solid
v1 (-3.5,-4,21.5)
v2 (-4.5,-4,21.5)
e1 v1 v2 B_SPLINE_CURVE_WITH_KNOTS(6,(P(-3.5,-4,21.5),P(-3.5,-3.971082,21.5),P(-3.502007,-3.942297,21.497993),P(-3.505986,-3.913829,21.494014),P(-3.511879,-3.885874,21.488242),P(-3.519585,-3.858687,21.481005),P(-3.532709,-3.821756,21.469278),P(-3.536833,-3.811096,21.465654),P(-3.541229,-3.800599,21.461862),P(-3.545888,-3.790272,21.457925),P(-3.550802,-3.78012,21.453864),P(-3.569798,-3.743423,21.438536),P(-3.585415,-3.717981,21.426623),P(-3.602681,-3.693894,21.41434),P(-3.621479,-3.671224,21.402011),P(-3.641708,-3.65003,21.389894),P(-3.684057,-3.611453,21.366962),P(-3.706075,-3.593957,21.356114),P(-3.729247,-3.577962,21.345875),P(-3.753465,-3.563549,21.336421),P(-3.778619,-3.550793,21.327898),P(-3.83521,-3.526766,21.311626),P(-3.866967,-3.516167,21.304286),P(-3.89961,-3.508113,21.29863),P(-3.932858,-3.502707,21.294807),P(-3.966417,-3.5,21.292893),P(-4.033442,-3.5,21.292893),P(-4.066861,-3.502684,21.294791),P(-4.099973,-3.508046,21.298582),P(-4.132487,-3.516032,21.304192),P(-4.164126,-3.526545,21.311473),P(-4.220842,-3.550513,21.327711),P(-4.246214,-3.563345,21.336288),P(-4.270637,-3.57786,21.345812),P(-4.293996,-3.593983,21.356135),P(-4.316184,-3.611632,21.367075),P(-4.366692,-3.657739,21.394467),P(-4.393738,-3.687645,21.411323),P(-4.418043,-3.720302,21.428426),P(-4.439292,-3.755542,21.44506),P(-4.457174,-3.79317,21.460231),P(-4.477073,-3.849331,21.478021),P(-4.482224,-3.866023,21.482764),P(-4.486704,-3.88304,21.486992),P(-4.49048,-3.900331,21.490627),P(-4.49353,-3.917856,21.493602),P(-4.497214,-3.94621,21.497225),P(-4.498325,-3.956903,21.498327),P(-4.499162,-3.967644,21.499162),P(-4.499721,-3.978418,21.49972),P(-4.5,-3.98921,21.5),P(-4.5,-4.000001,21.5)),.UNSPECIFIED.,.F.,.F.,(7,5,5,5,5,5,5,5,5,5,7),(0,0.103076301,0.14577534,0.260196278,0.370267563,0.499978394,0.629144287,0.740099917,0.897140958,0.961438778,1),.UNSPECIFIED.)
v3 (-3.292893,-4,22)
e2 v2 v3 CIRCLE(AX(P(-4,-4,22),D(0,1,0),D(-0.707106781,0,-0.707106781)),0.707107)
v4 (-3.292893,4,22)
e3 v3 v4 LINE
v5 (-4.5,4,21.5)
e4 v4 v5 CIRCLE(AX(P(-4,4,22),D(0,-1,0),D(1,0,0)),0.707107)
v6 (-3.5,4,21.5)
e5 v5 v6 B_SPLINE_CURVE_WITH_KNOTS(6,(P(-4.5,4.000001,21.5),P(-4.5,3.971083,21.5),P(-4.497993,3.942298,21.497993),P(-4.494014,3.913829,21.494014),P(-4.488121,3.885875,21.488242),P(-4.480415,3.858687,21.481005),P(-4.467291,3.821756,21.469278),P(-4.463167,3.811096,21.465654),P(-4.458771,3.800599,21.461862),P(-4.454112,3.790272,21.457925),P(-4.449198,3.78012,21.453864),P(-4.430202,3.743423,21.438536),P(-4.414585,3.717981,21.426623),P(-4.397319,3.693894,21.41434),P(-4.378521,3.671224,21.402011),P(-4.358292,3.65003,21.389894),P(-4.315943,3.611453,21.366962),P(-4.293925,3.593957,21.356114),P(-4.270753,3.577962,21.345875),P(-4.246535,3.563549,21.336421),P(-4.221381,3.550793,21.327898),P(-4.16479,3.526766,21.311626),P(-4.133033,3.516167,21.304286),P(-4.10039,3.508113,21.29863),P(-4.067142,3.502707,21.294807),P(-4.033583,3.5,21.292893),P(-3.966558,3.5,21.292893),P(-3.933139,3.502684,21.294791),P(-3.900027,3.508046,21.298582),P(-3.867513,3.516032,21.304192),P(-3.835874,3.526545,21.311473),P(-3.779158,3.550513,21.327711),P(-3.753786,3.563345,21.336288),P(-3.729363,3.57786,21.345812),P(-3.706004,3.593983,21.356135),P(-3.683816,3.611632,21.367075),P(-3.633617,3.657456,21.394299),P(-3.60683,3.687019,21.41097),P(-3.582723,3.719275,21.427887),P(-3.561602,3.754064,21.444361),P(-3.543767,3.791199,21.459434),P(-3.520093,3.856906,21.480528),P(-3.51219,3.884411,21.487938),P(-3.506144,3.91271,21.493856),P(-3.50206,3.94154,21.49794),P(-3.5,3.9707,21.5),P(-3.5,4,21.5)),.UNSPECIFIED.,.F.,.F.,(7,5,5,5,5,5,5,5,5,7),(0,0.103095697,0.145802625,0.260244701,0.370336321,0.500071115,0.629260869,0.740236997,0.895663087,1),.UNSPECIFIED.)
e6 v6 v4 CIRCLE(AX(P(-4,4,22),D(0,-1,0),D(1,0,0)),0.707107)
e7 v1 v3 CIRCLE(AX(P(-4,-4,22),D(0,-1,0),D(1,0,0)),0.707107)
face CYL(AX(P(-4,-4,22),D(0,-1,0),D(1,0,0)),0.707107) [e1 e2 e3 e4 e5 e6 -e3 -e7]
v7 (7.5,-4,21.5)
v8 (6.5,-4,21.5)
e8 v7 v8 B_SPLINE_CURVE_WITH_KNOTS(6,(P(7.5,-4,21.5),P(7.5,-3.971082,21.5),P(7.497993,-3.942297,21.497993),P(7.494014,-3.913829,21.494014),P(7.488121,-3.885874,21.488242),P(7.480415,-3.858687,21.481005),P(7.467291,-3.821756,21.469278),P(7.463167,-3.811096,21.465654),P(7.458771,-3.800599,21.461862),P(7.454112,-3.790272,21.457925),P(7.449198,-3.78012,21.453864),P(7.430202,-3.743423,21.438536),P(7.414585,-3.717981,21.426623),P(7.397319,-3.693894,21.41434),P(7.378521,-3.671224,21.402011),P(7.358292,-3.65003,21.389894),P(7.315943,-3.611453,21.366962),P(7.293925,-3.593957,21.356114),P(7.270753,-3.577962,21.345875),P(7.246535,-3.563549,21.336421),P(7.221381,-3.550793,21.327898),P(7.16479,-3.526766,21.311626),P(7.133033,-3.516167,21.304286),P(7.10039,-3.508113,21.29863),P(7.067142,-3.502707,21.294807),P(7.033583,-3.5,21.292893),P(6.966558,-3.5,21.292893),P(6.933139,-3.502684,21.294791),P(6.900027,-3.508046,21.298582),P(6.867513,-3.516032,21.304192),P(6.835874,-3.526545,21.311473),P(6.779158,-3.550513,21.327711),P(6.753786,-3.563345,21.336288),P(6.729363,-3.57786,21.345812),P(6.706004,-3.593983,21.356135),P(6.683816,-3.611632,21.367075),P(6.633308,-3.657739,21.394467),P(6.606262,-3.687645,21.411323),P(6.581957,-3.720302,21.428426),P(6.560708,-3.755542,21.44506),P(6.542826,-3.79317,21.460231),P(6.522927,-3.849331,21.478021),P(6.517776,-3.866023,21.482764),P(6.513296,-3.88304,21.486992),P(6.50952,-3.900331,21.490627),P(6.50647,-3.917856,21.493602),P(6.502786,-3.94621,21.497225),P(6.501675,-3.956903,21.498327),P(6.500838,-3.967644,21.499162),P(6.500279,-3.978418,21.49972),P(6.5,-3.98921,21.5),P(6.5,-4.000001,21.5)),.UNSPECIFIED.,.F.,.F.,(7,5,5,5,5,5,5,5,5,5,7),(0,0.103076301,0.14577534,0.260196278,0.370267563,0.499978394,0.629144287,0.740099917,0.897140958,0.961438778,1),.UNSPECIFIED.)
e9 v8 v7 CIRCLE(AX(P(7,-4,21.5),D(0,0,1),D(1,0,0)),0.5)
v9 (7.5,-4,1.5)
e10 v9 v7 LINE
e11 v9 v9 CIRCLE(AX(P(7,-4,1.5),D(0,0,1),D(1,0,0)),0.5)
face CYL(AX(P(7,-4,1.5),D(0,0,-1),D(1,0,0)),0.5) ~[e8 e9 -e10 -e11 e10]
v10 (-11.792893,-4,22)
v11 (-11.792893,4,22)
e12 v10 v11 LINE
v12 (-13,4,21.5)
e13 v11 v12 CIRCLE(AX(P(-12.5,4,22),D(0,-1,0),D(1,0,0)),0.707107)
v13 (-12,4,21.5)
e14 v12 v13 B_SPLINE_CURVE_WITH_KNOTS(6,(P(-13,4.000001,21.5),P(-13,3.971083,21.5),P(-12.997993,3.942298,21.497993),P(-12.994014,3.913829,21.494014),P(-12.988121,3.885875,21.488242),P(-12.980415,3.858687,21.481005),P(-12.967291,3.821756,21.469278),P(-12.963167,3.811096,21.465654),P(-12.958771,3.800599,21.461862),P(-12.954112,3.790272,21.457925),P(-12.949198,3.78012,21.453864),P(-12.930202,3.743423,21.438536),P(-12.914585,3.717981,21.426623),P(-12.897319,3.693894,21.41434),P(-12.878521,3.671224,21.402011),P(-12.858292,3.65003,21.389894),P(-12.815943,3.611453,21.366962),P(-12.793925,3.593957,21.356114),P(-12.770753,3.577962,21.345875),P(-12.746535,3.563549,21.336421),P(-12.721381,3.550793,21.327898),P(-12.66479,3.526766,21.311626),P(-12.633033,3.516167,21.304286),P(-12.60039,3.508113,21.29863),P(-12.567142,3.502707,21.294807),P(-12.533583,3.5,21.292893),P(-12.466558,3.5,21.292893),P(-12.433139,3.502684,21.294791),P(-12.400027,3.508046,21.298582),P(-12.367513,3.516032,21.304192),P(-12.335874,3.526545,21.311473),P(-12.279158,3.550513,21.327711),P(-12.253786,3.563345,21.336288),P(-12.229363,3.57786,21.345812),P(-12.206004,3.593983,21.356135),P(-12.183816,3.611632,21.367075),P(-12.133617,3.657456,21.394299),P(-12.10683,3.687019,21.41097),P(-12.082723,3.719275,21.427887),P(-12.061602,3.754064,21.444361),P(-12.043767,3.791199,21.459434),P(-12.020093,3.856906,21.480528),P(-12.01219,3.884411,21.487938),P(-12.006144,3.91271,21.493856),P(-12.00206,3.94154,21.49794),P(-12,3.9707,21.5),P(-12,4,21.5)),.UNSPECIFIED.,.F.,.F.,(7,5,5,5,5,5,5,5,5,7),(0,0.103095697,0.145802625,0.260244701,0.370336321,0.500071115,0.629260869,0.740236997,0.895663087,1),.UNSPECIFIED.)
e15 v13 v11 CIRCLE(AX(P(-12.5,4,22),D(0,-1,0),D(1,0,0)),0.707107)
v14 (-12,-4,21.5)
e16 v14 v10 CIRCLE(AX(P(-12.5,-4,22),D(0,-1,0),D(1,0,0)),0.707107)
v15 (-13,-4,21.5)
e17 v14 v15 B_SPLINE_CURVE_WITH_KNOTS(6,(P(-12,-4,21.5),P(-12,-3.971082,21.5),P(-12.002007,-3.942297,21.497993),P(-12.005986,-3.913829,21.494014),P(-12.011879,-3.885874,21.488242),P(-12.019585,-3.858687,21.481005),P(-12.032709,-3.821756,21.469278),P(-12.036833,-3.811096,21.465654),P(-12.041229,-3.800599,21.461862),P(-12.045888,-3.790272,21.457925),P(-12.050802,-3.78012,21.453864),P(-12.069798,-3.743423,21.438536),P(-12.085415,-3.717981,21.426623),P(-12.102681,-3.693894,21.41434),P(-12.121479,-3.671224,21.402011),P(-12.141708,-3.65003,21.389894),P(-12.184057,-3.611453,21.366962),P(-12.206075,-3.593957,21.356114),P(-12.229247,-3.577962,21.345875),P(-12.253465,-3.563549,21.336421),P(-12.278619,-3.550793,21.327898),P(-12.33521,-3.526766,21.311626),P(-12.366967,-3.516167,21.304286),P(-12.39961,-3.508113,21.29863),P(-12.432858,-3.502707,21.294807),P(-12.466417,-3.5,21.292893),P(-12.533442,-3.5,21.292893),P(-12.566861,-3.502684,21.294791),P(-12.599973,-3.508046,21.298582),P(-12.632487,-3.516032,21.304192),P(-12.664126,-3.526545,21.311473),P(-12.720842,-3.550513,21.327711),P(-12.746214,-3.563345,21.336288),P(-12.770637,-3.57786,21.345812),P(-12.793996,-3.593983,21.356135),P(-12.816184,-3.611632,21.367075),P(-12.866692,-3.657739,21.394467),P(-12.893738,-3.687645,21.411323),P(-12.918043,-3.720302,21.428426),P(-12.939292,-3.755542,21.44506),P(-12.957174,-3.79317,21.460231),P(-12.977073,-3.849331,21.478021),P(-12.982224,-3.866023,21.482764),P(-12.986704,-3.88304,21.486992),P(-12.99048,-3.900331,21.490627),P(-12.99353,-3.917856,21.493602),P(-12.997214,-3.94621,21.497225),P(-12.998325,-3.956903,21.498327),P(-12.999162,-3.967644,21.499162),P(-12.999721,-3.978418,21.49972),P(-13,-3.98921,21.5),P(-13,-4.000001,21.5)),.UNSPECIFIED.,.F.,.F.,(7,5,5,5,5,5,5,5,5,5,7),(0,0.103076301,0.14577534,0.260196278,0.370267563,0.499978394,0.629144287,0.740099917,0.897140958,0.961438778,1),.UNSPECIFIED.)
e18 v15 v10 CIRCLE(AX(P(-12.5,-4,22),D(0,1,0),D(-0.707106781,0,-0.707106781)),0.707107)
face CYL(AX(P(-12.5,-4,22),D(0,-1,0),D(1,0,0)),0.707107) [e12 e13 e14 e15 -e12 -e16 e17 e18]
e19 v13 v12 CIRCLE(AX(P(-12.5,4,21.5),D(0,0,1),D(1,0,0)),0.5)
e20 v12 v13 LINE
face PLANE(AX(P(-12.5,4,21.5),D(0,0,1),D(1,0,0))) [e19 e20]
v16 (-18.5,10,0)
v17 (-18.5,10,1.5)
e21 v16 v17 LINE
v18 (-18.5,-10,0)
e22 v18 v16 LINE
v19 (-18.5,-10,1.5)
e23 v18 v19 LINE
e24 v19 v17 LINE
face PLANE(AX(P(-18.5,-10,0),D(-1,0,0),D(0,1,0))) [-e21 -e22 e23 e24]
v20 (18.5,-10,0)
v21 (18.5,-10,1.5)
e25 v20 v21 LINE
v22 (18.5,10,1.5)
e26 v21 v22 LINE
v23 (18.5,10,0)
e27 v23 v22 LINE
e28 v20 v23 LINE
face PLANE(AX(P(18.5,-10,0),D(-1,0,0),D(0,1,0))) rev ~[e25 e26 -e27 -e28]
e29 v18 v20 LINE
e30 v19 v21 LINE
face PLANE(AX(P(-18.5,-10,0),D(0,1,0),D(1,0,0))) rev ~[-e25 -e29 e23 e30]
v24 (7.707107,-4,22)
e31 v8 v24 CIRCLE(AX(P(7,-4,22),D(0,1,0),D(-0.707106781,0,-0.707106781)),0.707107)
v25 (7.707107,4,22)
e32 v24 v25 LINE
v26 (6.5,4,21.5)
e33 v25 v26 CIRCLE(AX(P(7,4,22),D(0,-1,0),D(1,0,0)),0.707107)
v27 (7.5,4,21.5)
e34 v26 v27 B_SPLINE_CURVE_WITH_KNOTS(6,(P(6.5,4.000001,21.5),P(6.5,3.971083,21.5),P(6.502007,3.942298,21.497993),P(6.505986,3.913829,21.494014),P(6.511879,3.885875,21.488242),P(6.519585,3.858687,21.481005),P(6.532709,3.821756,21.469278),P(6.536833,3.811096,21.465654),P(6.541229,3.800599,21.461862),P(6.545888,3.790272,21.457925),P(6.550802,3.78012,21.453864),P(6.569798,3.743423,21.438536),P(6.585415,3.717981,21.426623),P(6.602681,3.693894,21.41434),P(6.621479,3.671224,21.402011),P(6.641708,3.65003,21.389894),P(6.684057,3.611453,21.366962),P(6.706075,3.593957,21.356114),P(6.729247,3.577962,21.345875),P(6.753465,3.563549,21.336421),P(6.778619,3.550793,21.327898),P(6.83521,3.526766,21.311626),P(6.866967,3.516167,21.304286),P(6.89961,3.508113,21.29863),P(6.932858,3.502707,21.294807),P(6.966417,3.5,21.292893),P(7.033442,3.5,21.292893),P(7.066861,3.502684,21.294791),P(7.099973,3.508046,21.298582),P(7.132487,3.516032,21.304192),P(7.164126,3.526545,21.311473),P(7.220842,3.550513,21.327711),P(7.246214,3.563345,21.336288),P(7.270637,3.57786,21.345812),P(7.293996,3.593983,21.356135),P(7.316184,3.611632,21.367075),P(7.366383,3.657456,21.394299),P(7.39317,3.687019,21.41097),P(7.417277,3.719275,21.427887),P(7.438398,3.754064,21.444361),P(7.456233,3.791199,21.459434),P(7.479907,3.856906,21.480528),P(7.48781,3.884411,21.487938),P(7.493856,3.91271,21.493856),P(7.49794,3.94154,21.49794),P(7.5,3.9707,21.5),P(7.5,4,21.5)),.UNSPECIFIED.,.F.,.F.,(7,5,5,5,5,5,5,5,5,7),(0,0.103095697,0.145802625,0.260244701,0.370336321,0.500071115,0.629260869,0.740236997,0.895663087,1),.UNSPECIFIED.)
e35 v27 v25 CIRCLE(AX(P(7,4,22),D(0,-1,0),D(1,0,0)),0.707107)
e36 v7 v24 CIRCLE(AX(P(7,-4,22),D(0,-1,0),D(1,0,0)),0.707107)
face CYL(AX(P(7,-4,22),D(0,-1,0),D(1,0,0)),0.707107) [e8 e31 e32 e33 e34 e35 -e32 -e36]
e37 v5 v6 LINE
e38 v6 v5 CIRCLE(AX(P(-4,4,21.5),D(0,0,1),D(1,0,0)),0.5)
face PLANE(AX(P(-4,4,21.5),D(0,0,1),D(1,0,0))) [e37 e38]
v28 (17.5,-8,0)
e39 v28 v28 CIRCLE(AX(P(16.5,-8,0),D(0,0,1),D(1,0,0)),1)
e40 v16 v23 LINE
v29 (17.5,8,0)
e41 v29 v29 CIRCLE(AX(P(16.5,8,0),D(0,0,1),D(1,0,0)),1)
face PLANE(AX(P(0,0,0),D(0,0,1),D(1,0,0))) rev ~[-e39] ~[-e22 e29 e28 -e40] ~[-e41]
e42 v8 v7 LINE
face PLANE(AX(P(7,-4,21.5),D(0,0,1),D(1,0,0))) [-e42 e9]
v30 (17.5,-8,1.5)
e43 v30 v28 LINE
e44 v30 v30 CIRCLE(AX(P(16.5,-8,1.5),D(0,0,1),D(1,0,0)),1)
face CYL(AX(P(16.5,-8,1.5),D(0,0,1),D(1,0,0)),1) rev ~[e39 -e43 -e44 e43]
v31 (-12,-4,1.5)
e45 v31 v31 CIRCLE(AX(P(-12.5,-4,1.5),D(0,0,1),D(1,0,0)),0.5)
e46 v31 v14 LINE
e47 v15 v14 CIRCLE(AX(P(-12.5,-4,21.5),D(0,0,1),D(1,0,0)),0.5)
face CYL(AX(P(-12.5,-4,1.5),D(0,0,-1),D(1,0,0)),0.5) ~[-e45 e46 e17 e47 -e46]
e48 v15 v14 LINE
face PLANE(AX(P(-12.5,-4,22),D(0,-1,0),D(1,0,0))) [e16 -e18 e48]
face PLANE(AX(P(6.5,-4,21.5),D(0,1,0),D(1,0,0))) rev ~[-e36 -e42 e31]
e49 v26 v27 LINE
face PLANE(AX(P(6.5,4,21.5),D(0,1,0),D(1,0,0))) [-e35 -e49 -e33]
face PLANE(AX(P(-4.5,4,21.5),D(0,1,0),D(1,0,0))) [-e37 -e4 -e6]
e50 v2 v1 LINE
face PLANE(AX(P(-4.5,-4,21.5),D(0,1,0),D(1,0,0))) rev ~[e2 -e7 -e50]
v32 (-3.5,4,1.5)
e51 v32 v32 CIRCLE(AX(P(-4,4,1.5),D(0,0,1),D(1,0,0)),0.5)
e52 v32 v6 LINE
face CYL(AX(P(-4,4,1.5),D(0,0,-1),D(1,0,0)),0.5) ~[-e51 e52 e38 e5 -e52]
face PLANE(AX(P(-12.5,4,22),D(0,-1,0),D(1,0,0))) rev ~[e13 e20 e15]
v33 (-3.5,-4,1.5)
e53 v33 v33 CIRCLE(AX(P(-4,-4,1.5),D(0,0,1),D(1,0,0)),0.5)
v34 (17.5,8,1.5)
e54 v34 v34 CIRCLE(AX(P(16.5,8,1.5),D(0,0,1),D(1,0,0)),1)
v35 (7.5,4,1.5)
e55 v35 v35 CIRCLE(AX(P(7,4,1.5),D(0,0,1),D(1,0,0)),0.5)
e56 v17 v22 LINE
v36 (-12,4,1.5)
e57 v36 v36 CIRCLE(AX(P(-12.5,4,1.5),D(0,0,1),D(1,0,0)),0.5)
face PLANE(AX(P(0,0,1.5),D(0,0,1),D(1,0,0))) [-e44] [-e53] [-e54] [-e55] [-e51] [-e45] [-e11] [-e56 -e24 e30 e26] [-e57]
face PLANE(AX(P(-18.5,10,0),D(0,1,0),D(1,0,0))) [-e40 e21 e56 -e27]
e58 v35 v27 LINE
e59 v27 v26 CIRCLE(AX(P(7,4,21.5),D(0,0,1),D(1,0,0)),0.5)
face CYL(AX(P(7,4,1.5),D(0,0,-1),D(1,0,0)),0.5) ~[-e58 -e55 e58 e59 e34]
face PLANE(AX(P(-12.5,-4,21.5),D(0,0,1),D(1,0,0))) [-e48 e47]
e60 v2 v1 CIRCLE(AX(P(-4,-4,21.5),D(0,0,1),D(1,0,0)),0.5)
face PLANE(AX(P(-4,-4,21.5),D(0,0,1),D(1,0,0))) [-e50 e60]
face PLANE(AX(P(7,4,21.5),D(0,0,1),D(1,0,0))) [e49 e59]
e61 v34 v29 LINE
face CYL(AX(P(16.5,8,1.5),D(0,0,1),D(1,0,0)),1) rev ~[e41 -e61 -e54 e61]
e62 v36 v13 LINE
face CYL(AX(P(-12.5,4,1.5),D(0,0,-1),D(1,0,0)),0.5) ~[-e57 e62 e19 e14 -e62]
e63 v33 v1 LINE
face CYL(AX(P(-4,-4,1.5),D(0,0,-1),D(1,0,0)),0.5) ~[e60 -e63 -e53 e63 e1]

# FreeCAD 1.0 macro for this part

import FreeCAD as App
import Part
import Sketcher

V = App.Vector
Q = App.Units.Quantity

doc = App.newDocument("Part")
body = doc.addObject("PartDesign::Body", "Body")

# Sketch on XY plane
sketch1 = body.newObject("Sketcher::SketchObject", "Sketch")
sketch1.AttachmentSupport = (doc.getObject("XY_Plane"), [""])
sketch1.MapMode = "FlatFace"
sketch1.addGeometry([
    Part.LineSegment(V(-18.5, 10, 0), V(-18.5, -10, 0)),
    Part.LineSegment(V(-18.5, -10, 0), V(18.5, -10, 0)),
    Part.LineSegment(V(18.5, -10, 0), V(18.5, 10, 0)),
    Part.LineSegment(V(18.5, 10, 0), V(-18.5, 10, 0)),
], False)
sketch1.addConstraint([
    Sketcher.Constraint("Coincident", 0, 2, 1, 1),
    Sketcher.Constraint("Coincident", 1, 2, 2, 1),
    Sketcher.Constraint("Coincident", 2, 2, 3, 1),
    Sketcher.Constraint("Coincident", 3, 2, 0, 1),
    Sketcher.Constraint("Vertical", 0),
    Sketcher.Constraint("Horizontal", 1),
    Sketcher.Constraint("Vertical", 2),
    Sketcher.Constraint("Horizontal", 3),
    Sketcher.Constraint("Symmetric", 0, 2, 2, 2, -1, 1),
    Sketcher.Constraint("DistanceX", 1, 1, 1, 2, Q("37 mm")),
    Sketcher.Constraint("DistanceY", 0, 2, 0, 1, Q("20 mm")),
])
pad1 = body.newObject("PartDesign::Pad", "Pad")
pad1.Profile = sketch1
pad1.Length = 1.5

# Sketch on XY plane
sketch2 = body.newObject("Sketcher::SketchObject", "Sketch001")
sketch2.AttachmentSupport = (doc.getObject("XY_Plane"), [""])
sketch2.MapMode = "FlatFace"
sketch2.AttachmentOffset = App.Placement(V(0, 0, 1.5), App.Rotation())
sketch2.addGeometry([
    Part.Circle(V(16.5, 8, 0), V(0, 0, 1), 1),
    Part.Circle(V(16.5, -8, 0), V(0, 0, 1), 1),
], False)
sketch2.addConstraint([
    Sketcher.Constraint("Equal", 0, 1),
    Sketcher.Constraint("Symmetric", 0, 3, 1, 3, -1),
    Sketcher.Constraint("Diameter", 0, Q("2 mm")),
    Sketcher.Constraint("DistanceY", -1, 1, 0, 3, Q("8 mm")),
    Sketcher.Constraint("DistanceX", -1, 1, 0, 3, Q("16.5 mm")),
])
pocket1 = body.newObject("PartDesign::Pocket", "Pocket")
pocket1.Profile = sketch2
pocket1.Type = "ThroughAll"

# Sketch on XY plane
sketch3 = body.newObject("Sketcher::SketchObject", "Sketch002")
sketch3.AttachmentSupport = (doc.getObject("XY_Plane"), [""])
sketch3.MapMode = "FlatFace"
sketch3.AttachmentOffset = App.Placement(V(0, 0, 1.5), App.Rotation())
sketch3.addGeometry([
    Part.Circle(V(-12.5, 4, 0), V(0, 0, 1), 0.5),  # 0
    Part.Circle(V(-4, 4, 0), V(0, 0, 1), 0.5),  # 1
    Part.Circle(V(7, 4, 0), V(0, 0, 1), 0.5),  # 2
    Part.Circle(V(7, -4, 0), V(0, 0, 1), 0.5),  # 3
    Part.Circle(V(-4, -4, 0), V(0, 0, 1), 0.5),  # 4
    Part.Circle(V(-12.5, -4, 0), V(0, 0, 1), 0.5),  # 5
], False)
sketch3.addConstraint([
    Sketcher.Constraint("Equal", 0, 1),
    Sketcher.Constraint("Equal", 1, 2),
    Sketcher.Constraint("Equal", 2, 3),
    Sketcher.Constraint("Equal", 3, 4),
    Sketcher.Constraint("Equal", 4, 5),
    Sketcher.Constraint("Symmetric", 2, 3, 3, 3, -1),
    Sketcher.Constraint("Symmetric", 1, 3, 4, 3, -1),
    Sketcher.Constraint("Symmetric", 0, 3, 5, 3, -1),
    Sketcher.Constraint("Horizontal", 0, 3, 1, 3),
    Sketcher.Constraint("Horizontal", 1, 3, 2, 3),
    Sketcher.Constraint("Diameter", 0, Q("1 mm")),
    Sketcher.Constraint("DistanceY", -1, 1, 0, 3, Q("4 mm")),
    Sketcher.Constraint("DistanceX", 1, 3, -1, 1, Q("4 mm")),
    Sketcher.Constraint("DistanceX", -1, 1, 2, 3, Q("7 mm")),
    Sketcher.Constraint("DistanceX", 0, 3, -1, 1, Q("12.5 mm")),
])
pad2 = body.newObject("PartDesign::Pad", "Pad001")
pad2.Profile = sketch3
pad2.Length = 20

# Sketch on XY plane
sketch4 = body.newObject("Sketcher::SketchObject", "Sketch003")
sketch4.AttachmentSupport = (doc.getObject("XY_Plane"), [""])
sketch4.MapMode = "FlatFace"
sketch4.AttachmentOffset = App.Placement(V(0, 0, 21.5), App.Rotation())
sketch4.addGeometry([
    Part.LineSegment(V(-13, 4, 0), V(-13, -4, 0)),  # 0
    Part.LineSegment(V(-13, -4, 0), V(-12, -4, 0)),  # 1
    Part.LineSegment(V(-12, -4, 0), V(-12, 4, 0)),  # 2
    Part.LineSegment(V(-12, 4, 0), V(-13, 4, 0)),  # 3
    Part.LineSegment(V(-4.5, 4, 0), V(-4.5, -4, 0)),  # 4
    Part.LineSegment(V(-4.5, -4, 0), V(-3.5, -4, 0)),  # 5
    Part.LineSegment(V(-3.5, -4, 0), V(-3.5, 4, 0)),  # 6
    Part.LineSegment(V(-3.5, 4, 0), V(-4.5, 4, 0)),  # 7
    Part.LineSegment(V(6.5, 4, 0), V(6.5, -4, 0)),  # 8
    Part.LineSegment(V(6.5, -4, 0), V(7.5, -4, 0)),  # 9
    Part.LineSegment(V(7.5, -4, 0), V(7.5, 4, 0)),  # 10
    Part.LineSegment(V(7.5, 4, 0), V(6.5, 4, 0)),  # 11
], False)
sketch4.addConstraint([
    Sketcher.Constraint("Coincident", 0, 2, 1, 1),
    Sketcher.Constraint("Coincident", 1, 2, 2, 1),
    Sketcher.Constraint("Coincident", 2, 2, 3, 1),
    Sketcher.Constraint("Coincident", 3, 2, 0, 1),
    Sketcher.Constraint("Coincident", 4, 2, 5, 1),
    Sketcher.Constraint("Coincident", 5, 2, 6, 1),
    Sketcher.Constraint("Coincident", 6, 2, 7, 1),
    Sketcher.Constraint("Coincident", 7, 2, 4, 1),
    Sketcher.Constraint("Coincident", 8, 2, 9, 1),
    Sketcher.Constraint("Coincident", 9, 2, 10, 1),
    Sketcher.Constraint("Coincident", 10, 2, 11, 1),
    Sketcher.Constraint("Coincident", 11, 2, 8, 1),
    Sketcher.Constraint("Vertical", 0),
    Sketcher.Constraint("Horizontal", 1),
    Sketcher.Constraint("Vertical", 2),
    Sketcher.Constraint("Horizontal", 3),
    Sketcher.Constraint("Vertical", 4),
    Sketcher.Constraint("Horizontal", 5),
    Sketcher.Constraint("Vertical", 6),
    Sketcher.Constraint("Horizontal", 7),
    Sketcher.Constraint("Vertical", 8),
    Sketcher.Constraint("Horizontal", 9),
    Sketcher.Constraint("Vertical", 10),
    Sketcher.Constraint("Horizontal", 11),
    Sketcher.Constraint("Horizontal", 1, 2, 4, 2),
    Sketcher.Constraint("Horizontal", 3, 2, 6, 2),
    Sketcher.Constraint("Horizontal", 5, 2, 8, 2),
    Sketcher.Constraint("Horizontal", 7, 2, 10, 2),
    Sketcher.Constraint("Equal", 3, 5),
    Sketcher.Constraint("Equal", 7, 9),
    Sketcher.Constraint("DistanceX", 1, 1, 1, 2, Q("1 mm")),
    Sketcher.Constraint("DistanceY", 0, 2, 0, 1, Q("8 mm")),
    Sketcher.Constraint("DistanceX", 0, 2, -1, 1, Q("13 mm")),
    Sketcher.Constraint("DistanceY", 0, 2, -1, 1, Q("4 mm")),
    Sketcher.Constraint("DistanceX", 5, 2, 8, 2, Q("10 mm")),
    Sketcher.Constraint("DistanceX", 4, 2, -1, 1, Q("4.5 mm")),
])
pad3 = body.newObject("PartDesign::Pad", "Pad002")
pad3.Profile = sketch4
pad3.Length = 1

# Sketch on XZ plane
sketch5 = body.newObject("Sketcher::SketchObject", "Sketch004")
sketch5.AttachmentSupport = (doc.getObject("XZ_Plane"), [""])
sketch5.MapMode = "FlatFace"
sketch5.AttachmentOffset = App.Placement(V(0, 0, 4), App.Rotation())
sketch5.addGeometry([
    Part.Circle(V(-12.5, 22, 0), V(0, 0, 1), 0.707107),
    Part.Circle(V(-4, 22, 0), V(0, 0, 1), 0.707107),
    Part.Circle(V(7, 22, 0), V(0, 0, 1), 0.707107),
], False)
sketch5.addConstraint([
    Sketcher.Constraint("Equal", 0, 1),
    Sketcher.Constraint("Equal", 1, 2),
    Sketcher.Constraint("Horizontal", 0, 3, 1, 3),
    Sketcher.Constraint("Horizontal", 1, 3, 2, 3),
    Sketcher.Constraint("DistanceY", -1, 1, 0, 3, Q("22 mm")),
    Sketcher.Constraint("DistanceX", 1, 3, -1, 1, Q("4 mm")),
    Sketcher.Constraint("DistanceX", -1, 1, 2, 3, Q("7 mm")),
    Sketcher.Constraint("DistanceX", 0, 3, -1, 1, Q("12.5 mm")),
    Sketcher.Constraint("Diameter", 0, Q("1.414214 mm")),
])
pad4 = body.newObject("PartDesign::Pad", "Pad003")
pad4.Profile = sketch5
pad4.Length = 8
pad4.Reversed = True

doc.recompute()
